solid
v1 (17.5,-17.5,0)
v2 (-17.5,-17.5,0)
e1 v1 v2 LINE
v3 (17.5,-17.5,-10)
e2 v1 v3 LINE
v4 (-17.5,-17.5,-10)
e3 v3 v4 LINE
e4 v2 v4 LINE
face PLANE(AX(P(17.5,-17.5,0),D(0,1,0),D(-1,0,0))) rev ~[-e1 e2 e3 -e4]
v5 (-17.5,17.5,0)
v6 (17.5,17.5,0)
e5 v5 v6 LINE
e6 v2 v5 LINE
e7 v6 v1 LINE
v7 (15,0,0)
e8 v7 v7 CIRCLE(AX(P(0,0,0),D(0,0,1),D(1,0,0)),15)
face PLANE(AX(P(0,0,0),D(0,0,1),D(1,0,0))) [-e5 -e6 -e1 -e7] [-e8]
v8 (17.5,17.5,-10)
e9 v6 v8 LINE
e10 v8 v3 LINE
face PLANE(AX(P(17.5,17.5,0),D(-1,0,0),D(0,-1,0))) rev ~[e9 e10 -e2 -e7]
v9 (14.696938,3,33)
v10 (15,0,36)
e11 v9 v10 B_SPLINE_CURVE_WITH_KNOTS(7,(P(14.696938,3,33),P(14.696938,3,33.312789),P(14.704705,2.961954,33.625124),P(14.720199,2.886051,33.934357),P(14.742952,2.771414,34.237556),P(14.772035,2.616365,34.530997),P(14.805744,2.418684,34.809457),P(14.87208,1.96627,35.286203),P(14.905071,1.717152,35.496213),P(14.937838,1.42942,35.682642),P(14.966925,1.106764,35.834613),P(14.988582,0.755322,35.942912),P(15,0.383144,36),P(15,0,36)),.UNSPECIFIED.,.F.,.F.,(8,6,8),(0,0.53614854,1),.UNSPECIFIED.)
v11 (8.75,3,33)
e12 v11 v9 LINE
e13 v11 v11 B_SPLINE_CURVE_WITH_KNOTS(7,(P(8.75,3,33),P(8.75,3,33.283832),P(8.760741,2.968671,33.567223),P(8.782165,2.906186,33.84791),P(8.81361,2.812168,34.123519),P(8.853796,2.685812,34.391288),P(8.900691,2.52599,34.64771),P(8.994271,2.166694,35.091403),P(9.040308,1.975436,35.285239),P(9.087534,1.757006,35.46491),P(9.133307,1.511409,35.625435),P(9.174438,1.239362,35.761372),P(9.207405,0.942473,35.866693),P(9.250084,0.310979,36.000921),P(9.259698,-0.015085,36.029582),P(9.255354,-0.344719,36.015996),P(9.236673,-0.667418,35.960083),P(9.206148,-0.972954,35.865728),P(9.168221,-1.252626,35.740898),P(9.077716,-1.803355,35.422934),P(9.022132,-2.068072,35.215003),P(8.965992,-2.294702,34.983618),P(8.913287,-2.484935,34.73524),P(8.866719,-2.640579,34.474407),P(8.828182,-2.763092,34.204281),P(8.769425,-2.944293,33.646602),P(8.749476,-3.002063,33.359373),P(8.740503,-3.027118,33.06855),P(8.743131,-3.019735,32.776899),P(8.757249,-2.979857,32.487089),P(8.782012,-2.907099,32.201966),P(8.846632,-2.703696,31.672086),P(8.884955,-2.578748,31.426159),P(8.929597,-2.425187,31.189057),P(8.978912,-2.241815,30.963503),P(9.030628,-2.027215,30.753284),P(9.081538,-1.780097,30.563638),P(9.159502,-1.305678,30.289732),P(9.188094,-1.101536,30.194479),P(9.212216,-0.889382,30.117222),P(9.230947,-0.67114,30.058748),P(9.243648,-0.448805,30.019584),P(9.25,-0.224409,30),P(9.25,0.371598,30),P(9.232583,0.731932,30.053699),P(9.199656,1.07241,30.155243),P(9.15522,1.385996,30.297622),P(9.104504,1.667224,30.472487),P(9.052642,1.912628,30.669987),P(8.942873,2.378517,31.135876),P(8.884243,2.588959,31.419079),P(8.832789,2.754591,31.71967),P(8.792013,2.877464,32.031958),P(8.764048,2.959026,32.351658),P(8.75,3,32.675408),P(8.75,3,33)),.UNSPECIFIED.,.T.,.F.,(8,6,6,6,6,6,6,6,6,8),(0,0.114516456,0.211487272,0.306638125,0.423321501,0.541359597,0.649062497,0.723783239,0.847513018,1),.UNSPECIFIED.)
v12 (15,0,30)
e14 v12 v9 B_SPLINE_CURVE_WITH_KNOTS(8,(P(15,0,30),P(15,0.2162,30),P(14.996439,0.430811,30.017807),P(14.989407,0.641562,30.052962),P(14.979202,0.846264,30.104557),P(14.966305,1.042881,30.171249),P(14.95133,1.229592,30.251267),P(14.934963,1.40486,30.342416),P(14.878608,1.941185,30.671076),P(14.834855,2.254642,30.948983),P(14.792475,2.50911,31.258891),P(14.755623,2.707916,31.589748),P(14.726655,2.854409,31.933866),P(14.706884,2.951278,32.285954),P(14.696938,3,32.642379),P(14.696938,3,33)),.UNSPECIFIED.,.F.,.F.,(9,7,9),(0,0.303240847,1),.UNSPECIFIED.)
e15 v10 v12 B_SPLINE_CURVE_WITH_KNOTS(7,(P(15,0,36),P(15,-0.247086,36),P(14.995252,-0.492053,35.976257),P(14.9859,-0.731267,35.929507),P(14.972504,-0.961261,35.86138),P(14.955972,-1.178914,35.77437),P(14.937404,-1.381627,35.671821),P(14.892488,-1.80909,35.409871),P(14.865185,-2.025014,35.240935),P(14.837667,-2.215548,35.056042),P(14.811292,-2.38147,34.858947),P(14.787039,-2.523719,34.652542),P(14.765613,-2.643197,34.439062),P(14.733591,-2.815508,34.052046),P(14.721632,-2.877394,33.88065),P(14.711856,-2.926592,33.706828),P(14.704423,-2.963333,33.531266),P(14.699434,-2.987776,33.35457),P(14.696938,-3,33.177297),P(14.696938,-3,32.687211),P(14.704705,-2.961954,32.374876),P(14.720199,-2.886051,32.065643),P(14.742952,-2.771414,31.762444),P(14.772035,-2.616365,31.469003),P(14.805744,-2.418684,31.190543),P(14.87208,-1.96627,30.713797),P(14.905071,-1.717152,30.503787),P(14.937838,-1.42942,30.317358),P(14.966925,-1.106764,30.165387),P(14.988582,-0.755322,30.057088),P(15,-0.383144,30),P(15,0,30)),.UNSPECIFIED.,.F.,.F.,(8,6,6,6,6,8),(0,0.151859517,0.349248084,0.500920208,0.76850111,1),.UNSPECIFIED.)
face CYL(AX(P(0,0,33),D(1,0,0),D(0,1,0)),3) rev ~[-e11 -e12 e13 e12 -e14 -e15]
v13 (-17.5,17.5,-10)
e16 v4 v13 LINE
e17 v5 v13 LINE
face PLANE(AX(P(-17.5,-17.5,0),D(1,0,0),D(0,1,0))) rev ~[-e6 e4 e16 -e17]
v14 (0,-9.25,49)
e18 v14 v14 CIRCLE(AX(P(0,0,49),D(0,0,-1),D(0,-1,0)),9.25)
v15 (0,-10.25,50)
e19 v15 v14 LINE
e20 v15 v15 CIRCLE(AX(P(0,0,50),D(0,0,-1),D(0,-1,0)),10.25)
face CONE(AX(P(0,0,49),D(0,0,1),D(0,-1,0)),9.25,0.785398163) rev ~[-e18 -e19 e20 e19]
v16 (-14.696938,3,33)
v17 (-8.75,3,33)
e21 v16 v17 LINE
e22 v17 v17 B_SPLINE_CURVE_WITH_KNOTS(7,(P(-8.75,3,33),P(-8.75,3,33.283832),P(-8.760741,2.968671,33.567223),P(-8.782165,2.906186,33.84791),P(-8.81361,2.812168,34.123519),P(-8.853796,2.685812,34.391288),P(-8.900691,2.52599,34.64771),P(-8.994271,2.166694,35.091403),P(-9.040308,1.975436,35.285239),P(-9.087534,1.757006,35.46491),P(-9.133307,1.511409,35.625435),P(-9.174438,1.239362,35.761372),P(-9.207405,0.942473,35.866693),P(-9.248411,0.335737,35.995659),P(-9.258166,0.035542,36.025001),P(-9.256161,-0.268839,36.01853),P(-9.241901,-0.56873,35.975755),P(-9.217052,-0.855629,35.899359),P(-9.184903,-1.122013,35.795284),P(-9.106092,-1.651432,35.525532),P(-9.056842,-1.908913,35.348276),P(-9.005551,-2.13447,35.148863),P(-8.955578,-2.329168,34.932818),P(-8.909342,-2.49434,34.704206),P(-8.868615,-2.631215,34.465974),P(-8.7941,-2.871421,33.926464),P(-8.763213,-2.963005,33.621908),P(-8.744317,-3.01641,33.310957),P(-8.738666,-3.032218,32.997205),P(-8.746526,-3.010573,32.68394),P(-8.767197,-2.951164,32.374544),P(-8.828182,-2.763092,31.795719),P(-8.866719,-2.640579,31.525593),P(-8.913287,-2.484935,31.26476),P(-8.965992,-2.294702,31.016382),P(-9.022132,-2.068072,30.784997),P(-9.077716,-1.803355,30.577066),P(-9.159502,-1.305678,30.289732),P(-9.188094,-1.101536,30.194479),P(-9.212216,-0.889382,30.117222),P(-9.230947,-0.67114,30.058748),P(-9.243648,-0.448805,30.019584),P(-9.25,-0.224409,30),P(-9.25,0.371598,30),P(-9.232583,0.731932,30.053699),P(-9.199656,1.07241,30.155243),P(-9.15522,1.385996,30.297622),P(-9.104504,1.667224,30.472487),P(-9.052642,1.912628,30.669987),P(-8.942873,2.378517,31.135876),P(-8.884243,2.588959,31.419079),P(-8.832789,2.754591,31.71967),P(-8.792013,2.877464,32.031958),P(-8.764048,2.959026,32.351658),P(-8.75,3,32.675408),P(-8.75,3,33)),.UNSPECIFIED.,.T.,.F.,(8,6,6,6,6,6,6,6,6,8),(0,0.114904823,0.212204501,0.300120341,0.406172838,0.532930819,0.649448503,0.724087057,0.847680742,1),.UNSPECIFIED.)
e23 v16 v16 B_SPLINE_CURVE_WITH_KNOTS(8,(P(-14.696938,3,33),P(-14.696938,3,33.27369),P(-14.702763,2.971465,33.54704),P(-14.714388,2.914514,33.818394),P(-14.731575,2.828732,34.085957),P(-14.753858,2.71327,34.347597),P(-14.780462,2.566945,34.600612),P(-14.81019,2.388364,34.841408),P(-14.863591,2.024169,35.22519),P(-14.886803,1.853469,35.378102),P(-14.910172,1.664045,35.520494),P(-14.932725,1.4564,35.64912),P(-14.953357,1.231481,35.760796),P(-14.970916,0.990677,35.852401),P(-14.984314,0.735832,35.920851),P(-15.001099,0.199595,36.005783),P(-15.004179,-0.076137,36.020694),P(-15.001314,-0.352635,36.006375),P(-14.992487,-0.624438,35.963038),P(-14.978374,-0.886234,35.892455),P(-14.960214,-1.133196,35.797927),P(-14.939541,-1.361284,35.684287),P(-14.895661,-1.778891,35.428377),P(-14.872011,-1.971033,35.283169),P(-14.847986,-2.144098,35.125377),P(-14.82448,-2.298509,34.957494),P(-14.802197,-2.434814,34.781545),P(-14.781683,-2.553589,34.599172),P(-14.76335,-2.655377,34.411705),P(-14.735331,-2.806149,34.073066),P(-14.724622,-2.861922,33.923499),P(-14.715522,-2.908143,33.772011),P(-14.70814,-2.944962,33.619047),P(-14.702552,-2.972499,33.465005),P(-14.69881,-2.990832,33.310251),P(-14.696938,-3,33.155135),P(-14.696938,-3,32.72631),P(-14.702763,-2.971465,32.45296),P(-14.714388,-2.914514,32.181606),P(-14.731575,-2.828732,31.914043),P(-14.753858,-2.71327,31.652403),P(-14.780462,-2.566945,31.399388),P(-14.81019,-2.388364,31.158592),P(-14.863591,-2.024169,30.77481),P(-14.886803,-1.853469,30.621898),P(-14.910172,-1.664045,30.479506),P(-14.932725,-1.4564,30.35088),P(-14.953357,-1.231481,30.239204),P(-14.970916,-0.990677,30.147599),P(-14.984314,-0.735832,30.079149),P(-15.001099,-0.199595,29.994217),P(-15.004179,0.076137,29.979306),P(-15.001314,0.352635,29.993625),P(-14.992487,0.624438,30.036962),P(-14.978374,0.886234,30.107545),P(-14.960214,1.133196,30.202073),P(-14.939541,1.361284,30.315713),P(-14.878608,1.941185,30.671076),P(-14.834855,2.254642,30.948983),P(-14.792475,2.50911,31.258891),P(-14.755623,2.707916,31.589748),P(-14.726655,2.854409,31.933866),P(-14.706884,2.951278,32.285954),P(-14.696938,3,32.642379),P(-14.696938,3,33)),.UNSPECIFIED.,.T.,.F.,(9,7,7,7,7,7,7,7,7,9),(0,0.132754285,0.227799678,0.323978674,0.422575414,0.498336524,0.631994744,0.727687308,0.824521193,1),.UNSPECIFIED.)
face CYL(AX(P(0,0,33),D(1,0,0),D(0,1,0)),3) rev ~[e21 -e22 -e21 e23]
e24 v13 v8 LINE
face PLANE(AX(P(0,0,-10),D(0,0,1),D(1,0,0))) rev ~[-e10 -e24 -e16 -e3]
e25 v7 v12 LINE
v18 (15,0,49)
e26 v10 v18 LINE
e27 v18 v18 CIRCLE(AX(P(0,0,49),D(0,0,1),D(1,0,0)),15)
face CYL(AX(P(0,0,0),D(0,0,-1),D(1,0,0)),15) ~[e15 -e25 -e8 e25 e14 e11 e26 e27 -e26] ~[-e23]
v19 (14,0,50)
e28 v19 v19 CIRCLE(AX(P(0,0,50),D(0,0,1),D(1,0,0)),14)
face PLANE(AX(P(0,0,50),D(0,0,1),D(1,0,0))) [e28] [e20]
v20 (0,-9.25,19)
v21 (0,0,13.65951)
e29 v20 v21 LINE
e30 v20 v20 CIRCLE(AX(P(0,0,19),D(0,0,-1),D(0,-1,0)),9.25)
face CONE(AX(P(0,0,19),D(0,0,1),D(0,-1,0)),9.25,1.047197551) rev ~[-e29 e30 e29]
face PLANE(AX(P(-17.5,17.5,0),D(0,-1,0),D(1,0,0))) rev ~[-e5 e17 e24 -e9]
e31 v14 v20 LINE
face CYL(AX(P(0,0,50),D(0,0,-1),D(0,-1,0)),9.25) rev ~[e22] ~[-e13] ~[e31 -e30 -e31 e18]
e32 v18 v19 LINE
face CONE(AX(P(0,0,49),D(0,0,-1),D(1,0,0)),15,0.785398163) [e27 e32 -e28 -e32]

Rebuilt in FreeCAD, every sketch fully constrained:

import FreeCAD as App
import Part
import Sketcher

V = App.Vector
Q = App.Units.Quantity


def edges_at(feature, points):
    """Names of the edges that pass closest to the given points."""
    edges = feature.Shape.Edges
    near = lambda p: min(range(len(edges)), key=lambda i: edges[i].distToShape(Part.Vertex(*p))[0])
    return sorted({f"Edge{near(p) + 1}" for p in points})


def add_polygon(sketch, points):
    """Adds a closed chain of lines whose ends are joined by coincident constraints."""
    first, n = sketch.GeometryCount, len(points)
    for a, b in zip(points, points[1:] + points[:1]):
        sketch.addGeometry(Part.LineSegment(App.Vector(*a, 0), App.Vector(*b, 0)), False)
    for i in range(n):
        sketch.addConstraint(Sketcher.Constraint("Coincident", first + i, 2, first + (i + 1) % n, 1))

doc = App.newDocument("Part")
params = doc.addObject("Spreadsheet::Sheet", "Params")
for row, (alias, value) in enumerate([
    ("sketch1_width", "35 mm"),
    ("pad1_length", "10 mm"),
    ("sketch2_diameter", "30 mm"),
    ("pad2_length", "50 mm"),
    ("sketch3_diameter", "18.5 mm"),
    ("hole_diameter", "18.5 mm"),
    ("hole_depth", "31 mm"),
    ("sketch4_diameter", "6 mm"),
    ("pocket1_length", "50 mm"),
    ("chamfer_size", "1 mm"),
], start=1):
    params.set(f"A{row}", alias)
    params.set(f"B{row}", "=" + value)
    params.setAlias(f"B{row}", alias)

body = doc.addObject("PartDesign::Body", "Body")

# Sketch on XY plane
sketch1 = body.newObject("Sketcher::SketchObject", "Sketch")
sketch1.AttachmentSupport = (doc.getObject("XY_Plane"), [""])
sketch1.MapMode = "FlatFace"
add_polygon(sketch1, [(-18, -18), (18, -18), (18, 18), (-18, 18)])  # lines 0-3
sketch1.addConstraint([
    Sketcher.Constraint("Horizontal", 0),
    Sketcher.Constraint("Vertical", 1),
    Sketcher.Constraint("Horizontal", 2),
    Sketcher.Constraint("Vertical", 3),
    Sketcher.Constraint("Symmetric", 0, 2, 2, 2, -1, 1),
    Sketcher.Constraint("Equal", 2, 1),
    Sketcher.Constraint("DistanceX", 0, 1, 0, 2, Q("35 mm")),
])
sketch1.setExpression("Constraints[10]", "Params.sketch1_width")
pad1 = body.newObject("PartDesign::Pad", "Pad")
pad1.Profile = sketch1
pad1.setExpression("Length", "Params.pad1_length")
pad1.Reversed = True

# Sketch on XY plane
sketch2 = body.newObject("Sketcher::SketchObject", "Sketch001")
sketch2.AttachmentSupport = (doc.getObject("XY_Plane"), [""])
sketch2.MapMode = "FlatFace"
sketch2.addGeometry(Part.Circle(V(0, 0, 0), V(0, 0, 1), 15), False)
sketch2.addConstraint([
    Sketcher.Constraint("Coincident", 0, 3, -1, 1),
    Sketcher.Constraint("Diameter", 0, Q("30 mm")),
])
sketch2.setExpression("Constraints[1]", "Params.sketch2_diameter")
pad2 = body.newObject("PartDesign::Pad", "Pad001")
pad2.Profile = sketch2
pad2.setExpression("Length", "Params.pad2_length")

# Sketch on XY plane
sketch3 = body.newObject("Sketcher::SketchObject", "Sketch002")
sketch3.AttachmentSupport = (doc.getObject("XY_Plane"), [""])
sketch3.MapMode = "FlatFace"
sketch3.AttachmentOffset = App.Placement(V(0, 0, 50), App.Rotation())
sketch3.addGeometry(Part.Circle(V(0, 0, 0), V(0, 0, 1), 9), False)
sketch3.addConstraint([
    Sketcher.Constraint("Coincident", 0, 3, -1, 1),
    Sketcher.Constraint("Diameter", 0, Q("18.5 mm")),
])
sketch3.setExpression("Constraints[1]", "Params.sketch3_diameter")
doc.recompute()
hole = body.newObject("PartDesign::Hole", "Hole")
hole.Profile = sketch3
hole.ThreadType = "None"
hole.setExpression("Diameter", "Params.hole_diameter")
hole.DepthType = "Dimension"
hole.setExpression("Depth", "Params.hole_depth")
hole.DrillPoint = "Angled"
hole.DrillPointAngle = 120

# Sketch on YZ plane
sketch4 = body.newObject("Sketcher::SketchObject", "Sketch003")
sketch4.AttachmentSupport = (doc.getObject("YZ_Plane"), [""])
sketch4.MapMode = "FlatFace"
sketch4.addGeometry(Part.Circle(V(0, 33, 0), V(0, 0, 1), 3), False)
sketch4.addConstraint([
    Sketcher.Constraint("PointOnObject", 0, 3, -2),
    Sketcher.Constraint("Diameter", 0, Q("6 mm")),
    Sketcher.Constraint("DistanceY", -1, 1, 0, 3, Q("33 mm")),
])
sketch4.setExpression("Constraints[1]", "Params.sketch4_diameter")
pocket1 = body.newObject("PartDesign::Pocket", "Pocket")
pocket1.Profile = sketch4
pocket1.setExpression("Length", "Params.pocket1_length")
pocket1.Midplane = True
doc.recompute()

chamfer = body.newObject("PartDesign::Chamfer", "Chamfer")
chamfer.Base = (pocket1, edges_at(pocket1, [(-15, 0, 50), (0, 9.25, 50)]))
chamfer.setExpression("Size", "Params.chamfer_size")

doc.recompute()
